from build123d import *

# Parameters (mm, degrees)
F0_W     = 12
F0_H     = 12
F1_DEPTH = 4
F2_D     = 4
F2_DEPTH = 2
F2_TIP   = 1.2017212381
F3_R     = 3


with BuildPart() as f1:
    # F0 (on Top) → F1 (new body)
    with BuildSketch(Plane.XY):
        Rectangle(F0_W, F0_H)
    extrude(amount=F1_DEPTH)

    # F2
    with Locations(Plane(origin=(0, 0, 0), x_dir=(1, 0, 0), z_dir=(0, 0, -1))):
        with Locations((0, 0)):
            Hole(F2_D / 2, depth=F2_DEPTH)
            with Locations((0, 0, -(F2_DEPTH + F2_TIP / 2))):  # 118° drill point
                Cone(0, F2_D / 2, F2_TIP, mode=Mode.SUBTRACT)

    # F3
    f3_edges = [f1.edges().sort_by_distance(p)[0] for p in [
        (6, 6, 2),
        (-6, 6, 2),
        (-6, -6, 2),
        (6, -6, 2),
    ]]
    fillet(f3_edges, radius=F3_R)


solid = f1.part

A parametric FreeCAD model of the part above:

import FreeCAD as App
import Part
import Sketcher

V = App.Vector
Q = App.Units.Quantity


def edges_at(feature, points):
    """Names of the edges that pass closest to the given points."""
    edges = feature.Shape.Edges
    near = lambda p: min(range(len(edges)), key=lambda i: edges[i].distToShape(Part.Vertex(*p))[0])
    return sorted({f"Edge{near(p) + 1}" for p in points})

doc = App.newDocument("Part")
body = doc.addObject("PartDesign::Body", "Body")

# Sketch on XY plane
sketch1 = body.newObject("Sketcher::SketchObject", "Sketch")
sketch1.AttachmentSupport = (doc.getObject("XY_Plane"), [""])
sketch1.MapMode = "FlatFace"
sketch1.addGeometry([
    Part.LineSegment(V(-6, 6, 0), V(-6, -6, 0)),
    Part.LineSegment(V(-6, -6, 0), V(6, -6, 0)),
    Part.LineSegment(V(6, -6, 0), V(6, 6, 0)),
    Part.LineSegment(V(6, 6, 0), V(-6, 6, 0)),
], False)
sketch1.addConstraint([
    Sketcher.Constraint("Coincident", 0, 2, 1, 1),
    Sketcher.Constraint("Coincident", 1, 2, 2, 1),
    Sketcher.Constraint("Coincident", 2, 2, 3, 1),
    Sketcher.Constraint("Coincident", 3, 2, 0, 1),
    Sketcher.Constraint("Vertical", 0),
    Sketcher.Constraint("Horizontal", 1),
    Sketcher.Constraint("Vertical", 2),
    Sketcher.Constraint("Horizontal", 3),
    Sketcher.Constraint("Symmetric", 0, 2, 2, 2, -1, 1),
    Sketcher.Constraint("Equal", 3, 0),
    Sketcher.Constraint("DistanceX", 1, 1, 1, 2, Q("12 mm")),
])
pad1 = body.newObject("PartDesign::Pad", "Pad")
pad1.Profile = sketch1
pad1.Length = 4

# Sketch on XY plane
sketch2 = body.newObject("Sketcher::SketchObject", "Sketch001")
sketch2.AttachmentSupport = (doc.getObject("XY_Plane"), [""])
sketch2.MapMode = "FlatFace"
sketch2.addGeometry(Part.Circle(V(0, 0, 0), V(0, 0, 1), 2), False)
sketch2.addConstraint([
    Sketcher.Constraint("Coincident", 0, 3, -1, 1),
    Sketcher.Constraint("Diameter", 0, Q("4 mm")),
])
doc.recompute()
hole = body.newObject("PartDesign::Hole", "Hole")
hole.Profile = sketch2
hole.ThreadType = "None"
hole.Diameter = 4
hole.DepthType = "Dimension"
hole.Depth = 2
hole.DrillPoint = "Angled"
hole.DrillPointAngle = 118
hole.Reversed = True
doc.recompute()

fillet = body.newObject("PartDesign::Fillet", "Fillet")
fillet.Base = (hole, edges_at(hole, [
    (6, 6, 2),
    (-6, 6, 2),
    (-6, -6, 2),
    (6, -6, 2),
]))
fillet.Radius = 3

doc.recompute()
